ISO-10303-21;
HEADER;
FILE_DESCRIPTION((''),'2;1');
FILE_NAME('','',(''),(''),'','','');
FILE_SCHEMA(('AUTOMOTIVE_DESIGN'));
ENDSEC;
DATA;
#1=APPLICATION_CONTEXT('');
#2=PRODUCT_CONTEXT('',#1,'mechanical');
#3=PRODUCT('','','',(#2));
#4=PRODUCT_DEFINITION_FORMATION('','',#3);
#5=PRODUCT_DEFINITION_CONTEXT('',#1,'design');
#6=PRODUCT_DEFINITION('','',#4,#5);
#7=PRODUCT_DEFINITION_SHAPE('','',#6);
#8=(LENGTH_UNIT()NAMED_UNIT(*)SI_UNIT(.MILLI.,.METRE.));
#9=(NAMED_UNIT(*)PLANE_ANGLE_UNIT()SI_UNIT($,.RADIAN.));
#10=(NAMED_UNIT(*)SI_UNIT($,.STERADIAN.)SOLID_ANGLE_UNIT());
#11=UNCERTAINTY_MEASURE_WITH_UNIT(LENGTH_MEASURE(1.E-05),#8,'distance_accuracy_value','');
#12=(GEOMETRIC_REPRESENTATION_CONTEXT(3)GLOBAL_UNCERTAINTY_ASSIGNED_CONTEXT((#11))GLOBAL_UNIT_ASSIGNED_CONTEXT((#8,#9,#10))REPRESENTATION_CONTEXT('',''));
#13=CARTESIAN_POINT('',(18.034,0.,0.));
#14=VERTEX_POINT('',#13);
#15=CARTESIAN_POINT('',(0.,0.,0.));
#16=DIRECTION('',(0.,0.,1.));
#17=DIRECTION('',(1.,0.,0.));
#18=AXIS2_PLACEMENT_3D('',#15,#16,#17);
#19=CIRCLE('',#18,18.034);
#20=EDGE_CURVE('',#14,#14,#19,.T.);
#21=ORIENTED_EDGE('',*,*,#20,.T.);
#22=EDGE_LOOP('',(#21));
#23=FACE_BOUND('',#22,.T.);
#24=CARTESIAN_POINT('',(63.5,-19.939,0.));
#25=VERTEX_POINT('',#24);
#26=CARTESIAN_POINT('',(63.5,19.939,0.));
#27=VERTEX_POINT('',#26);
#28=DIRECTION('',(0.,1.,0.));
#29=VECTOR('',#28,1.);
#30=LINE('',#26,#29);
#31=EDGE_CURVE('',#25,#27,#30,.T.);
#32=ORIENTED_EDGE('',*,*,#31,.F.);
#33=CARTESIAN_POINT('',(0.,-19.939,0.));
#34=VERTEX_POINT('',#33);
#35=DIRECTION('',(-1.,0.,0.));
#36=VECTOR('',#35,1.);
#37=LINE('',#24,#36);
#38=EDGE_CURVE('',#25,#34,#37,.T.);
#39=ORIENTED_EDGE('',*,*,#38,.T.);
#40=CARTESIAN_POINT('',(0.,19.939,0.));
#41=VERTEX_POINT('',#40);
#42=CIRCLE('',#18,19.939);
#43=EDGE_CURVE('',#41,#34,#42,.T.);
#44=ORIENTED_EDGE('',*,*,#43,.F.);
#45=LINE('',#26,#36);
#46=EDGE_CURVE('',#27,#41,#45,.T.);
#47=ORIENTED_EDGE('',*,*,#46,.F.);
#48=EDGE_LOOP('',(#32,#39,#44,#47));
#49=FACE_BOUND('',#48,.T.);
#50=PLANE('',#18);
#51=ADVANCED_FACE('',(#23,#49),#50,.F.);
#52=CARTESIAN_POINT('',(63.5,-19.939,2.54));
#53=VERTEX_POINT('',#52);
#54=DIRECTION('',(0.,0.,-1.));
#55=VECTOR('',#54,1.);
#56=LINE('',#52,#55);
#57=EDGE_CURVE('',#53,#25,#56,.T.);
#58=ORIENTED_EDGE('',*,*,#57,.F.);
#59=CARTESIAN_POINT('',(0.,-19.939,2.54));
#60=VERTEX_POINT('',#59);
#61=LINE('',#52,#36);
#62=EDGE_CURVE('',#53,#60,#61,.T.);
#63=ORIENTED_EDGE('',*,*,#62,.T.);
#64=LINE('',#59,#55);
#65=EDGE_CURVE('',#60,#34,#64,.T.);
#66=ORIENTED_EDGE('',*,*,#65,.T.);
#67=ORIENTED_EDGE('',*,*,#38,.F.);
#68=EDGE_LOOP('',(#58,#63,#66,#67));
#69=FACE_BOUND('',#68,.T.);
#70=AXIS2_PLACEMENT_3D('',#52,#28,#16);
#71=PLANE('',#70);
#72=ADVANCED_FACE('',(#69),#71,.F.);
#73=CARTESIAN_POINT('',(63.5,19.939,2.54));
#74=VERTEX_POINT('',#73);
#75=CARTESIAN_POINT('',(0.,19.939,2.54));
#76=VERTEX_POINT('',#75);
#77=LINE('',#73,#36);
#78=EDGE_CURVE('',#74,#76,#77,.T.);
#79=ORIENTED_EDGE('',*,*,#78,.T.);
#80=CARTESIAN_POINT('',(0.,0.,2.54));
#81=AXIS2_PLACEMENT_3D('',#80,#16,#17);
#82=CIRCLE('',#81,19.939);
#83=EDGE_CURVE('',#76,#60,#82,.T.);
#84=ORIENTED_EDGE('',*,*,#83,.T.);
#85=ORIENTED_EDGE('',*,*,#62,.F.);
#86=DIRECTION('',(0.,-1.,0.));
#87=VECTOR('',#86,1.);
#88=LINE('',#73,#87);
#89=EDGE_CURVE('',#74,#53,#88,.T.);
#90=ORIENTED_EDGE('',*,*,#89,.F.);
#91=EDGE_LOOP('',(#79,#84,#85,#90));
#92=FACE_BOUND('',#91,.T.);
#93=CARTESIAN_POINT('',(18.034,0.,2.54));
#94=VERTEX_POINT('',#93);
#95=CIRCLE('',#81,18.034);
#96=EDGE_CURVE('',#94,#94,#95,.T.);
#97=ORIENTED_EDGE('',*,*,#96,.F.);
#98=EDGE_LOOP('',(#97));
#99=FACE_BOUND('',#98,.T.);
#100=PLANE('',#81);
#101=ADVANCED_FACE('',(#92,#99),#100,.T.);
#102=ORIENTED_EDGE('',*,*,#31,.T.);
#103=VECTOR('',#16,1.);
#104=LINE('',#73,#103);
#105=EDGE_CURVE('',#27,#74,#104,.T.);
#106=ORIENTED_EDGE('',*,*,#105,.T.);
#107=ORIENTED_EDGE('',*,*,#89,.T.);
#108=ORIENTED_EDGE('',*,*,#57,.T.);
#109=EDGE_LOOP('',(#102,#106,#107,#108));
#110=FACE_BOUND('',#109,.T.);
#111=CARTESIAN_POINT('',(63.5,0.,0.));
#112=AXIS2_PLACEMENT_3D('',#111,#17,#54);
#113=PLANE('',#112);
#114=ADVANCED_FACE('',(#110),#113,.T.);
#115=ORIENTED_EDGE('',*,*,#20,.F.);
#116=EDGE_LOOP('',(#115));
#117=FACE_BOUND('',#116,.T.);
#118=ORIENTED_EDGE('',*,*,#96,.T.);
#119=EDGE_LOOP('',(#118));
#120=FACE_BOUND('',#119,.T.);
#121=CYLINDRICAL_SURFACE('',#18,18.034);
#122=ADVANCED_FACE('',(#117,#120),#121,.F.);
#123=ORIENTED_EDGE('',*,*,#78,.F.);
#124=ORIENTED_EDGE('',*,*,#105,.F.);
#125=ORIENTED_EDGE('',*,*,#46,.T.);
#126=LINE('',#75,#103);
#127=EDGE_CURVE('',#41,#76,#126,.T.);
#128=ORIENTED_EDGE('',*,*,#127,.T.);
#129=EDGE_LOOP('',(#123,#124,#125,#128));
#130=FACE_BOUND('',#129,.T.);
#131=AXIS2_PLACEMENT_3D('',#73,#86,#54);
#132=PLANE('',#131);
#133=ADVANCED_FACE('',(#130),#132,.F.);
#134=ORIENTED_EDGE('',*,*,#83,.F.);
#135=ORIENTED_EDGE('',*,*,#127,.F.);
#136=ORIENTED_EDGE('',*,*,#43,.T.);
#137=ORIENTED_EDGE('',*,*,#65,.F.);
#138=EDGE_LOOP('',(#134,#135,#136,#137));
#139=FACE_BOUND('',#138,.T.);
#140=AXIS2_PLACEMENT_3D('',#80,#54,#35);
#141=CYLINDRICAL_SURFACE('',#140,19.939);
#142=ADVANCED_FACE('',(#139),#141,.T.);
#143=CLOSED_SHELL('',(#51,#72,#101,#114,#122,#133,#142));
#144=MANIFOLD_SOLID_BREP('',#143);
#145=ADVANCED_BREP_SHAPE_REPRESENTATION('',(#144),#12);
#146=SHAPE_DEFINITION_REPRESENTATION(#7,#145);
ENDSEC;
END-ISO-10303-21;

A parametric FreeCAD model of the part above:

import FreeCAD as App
import Part
import Sketcher
Q = App.Units.Quantity

doc = App.newDocument("Part")
body = doc.addObject("PartDesign::Body", "Body")

sketch1 = body.newObject("Sketcher::SketchObject", "Sketch")
sketch1.AttachmentSupport = (doc.getObject("XY_Plane"), [""])
sketch1.MapMode = "FlatFace"
sketch1.addGeometry(Part.Circle(App.Vector(0, 0, 0), App.Vector(0, 0, 1), 20), False)
sketch1.addConstraint([
    Sketcher.Constraint("Coincident", 0, 3, -1, 1),
    Sketcher.Constraint("Diameter", 0, Q("1.57 in")),
])
pad1 = body.newObject("PartDesign::Pad", "Pad")
pad1.Profile = sketch1
pad1.Length = Q("0.1 in")

sketch2 = body.newObject("Sketcher::SketchObject", "Sketch001")
sketch2.AttachmentSupport = (doc.getObject("YZ_Plane"), [""])
sketch2.MapMode = "FlatFace"
sketch2.addGeometry([
    Part.LineSegment(App.Vector(19.9, 2.5, 0), App.Vector(-19.9, 2.5, 0)),
    Part.LineSegment(App.Vector(-19.9, 2.5, 0), App.Vector(-19.9, 0, 0)),
    Part.LineSegment(App.Vector(-19.9, 0, 0), App.Vector(19.9, 0, 0)),
    Part.LineSegment(App.Vector(19.9, 0, 0), App.Vector(19.9, 2.5, 0)),
], False)
sketch2.addConstraint([
    Sketcher.Constraint("Coincident", 0, 2, 1, 1),
    Sketcher.Constraint("Coincident", 1, 2, 2, 1),
    Sketcher.Constraint("Coincident", 2, 2, 3, 1),
    Sketcher.Constraint("Coincident", 3, 2, 0, 1),
    Sketcher.Constraint("Horizontal", 0),
    Sketcher.Constraint("Vertical", 1),
    Sketcher.Constraint("Horizontal", 2),
    Sketcher.Constraint("Vertical", 3),
    Sketcher.Constraint("Symmetric", 1, 2, 2, 2, -1, 1),
    Sketcher.Constraint("DistanceY", 1, 2, 1, 1, Q("0.1 in")),
    Sketcher.Constraint("DistanceX", 0, 2, 0, 1, Q("1.57 in")),
])
pad2 = body.newObject("PartDesign::Pad", "Pad001")
pad2.Profile = sketch2
pad2.Length = Q("2.5 in")

sketch3 = body.newObject("Sketcher::SketchObject", "Sketch002")
sketch3.AttachmentSupport = (doc.getObject("XY_Plane"), [""])
sketch3.MapMode = "FlatFace"
sketch3.AttachmentOffset = App.Placement(App.Vector(0, 0, 0.1 * 25.4), App.Rotation())
sketch3.addGeometry(Part.Circle(App.Vector(0, 0, 0), App.Vector(0, 0, 1), 18), False)
sketch3.addConstraint([
    Sketcher.Constraint("Coincident", 0, 3, -1, 1),
    Sketcher.Constraint("Diameter", 0, Q("1.42 in")),
])
pocket1 = body.newObject("PartDesign::Pocket", "Pocket")
pocket1.Profile = sketch3
pocket1.Length = Q("0.1 in")

doc.recompute()
